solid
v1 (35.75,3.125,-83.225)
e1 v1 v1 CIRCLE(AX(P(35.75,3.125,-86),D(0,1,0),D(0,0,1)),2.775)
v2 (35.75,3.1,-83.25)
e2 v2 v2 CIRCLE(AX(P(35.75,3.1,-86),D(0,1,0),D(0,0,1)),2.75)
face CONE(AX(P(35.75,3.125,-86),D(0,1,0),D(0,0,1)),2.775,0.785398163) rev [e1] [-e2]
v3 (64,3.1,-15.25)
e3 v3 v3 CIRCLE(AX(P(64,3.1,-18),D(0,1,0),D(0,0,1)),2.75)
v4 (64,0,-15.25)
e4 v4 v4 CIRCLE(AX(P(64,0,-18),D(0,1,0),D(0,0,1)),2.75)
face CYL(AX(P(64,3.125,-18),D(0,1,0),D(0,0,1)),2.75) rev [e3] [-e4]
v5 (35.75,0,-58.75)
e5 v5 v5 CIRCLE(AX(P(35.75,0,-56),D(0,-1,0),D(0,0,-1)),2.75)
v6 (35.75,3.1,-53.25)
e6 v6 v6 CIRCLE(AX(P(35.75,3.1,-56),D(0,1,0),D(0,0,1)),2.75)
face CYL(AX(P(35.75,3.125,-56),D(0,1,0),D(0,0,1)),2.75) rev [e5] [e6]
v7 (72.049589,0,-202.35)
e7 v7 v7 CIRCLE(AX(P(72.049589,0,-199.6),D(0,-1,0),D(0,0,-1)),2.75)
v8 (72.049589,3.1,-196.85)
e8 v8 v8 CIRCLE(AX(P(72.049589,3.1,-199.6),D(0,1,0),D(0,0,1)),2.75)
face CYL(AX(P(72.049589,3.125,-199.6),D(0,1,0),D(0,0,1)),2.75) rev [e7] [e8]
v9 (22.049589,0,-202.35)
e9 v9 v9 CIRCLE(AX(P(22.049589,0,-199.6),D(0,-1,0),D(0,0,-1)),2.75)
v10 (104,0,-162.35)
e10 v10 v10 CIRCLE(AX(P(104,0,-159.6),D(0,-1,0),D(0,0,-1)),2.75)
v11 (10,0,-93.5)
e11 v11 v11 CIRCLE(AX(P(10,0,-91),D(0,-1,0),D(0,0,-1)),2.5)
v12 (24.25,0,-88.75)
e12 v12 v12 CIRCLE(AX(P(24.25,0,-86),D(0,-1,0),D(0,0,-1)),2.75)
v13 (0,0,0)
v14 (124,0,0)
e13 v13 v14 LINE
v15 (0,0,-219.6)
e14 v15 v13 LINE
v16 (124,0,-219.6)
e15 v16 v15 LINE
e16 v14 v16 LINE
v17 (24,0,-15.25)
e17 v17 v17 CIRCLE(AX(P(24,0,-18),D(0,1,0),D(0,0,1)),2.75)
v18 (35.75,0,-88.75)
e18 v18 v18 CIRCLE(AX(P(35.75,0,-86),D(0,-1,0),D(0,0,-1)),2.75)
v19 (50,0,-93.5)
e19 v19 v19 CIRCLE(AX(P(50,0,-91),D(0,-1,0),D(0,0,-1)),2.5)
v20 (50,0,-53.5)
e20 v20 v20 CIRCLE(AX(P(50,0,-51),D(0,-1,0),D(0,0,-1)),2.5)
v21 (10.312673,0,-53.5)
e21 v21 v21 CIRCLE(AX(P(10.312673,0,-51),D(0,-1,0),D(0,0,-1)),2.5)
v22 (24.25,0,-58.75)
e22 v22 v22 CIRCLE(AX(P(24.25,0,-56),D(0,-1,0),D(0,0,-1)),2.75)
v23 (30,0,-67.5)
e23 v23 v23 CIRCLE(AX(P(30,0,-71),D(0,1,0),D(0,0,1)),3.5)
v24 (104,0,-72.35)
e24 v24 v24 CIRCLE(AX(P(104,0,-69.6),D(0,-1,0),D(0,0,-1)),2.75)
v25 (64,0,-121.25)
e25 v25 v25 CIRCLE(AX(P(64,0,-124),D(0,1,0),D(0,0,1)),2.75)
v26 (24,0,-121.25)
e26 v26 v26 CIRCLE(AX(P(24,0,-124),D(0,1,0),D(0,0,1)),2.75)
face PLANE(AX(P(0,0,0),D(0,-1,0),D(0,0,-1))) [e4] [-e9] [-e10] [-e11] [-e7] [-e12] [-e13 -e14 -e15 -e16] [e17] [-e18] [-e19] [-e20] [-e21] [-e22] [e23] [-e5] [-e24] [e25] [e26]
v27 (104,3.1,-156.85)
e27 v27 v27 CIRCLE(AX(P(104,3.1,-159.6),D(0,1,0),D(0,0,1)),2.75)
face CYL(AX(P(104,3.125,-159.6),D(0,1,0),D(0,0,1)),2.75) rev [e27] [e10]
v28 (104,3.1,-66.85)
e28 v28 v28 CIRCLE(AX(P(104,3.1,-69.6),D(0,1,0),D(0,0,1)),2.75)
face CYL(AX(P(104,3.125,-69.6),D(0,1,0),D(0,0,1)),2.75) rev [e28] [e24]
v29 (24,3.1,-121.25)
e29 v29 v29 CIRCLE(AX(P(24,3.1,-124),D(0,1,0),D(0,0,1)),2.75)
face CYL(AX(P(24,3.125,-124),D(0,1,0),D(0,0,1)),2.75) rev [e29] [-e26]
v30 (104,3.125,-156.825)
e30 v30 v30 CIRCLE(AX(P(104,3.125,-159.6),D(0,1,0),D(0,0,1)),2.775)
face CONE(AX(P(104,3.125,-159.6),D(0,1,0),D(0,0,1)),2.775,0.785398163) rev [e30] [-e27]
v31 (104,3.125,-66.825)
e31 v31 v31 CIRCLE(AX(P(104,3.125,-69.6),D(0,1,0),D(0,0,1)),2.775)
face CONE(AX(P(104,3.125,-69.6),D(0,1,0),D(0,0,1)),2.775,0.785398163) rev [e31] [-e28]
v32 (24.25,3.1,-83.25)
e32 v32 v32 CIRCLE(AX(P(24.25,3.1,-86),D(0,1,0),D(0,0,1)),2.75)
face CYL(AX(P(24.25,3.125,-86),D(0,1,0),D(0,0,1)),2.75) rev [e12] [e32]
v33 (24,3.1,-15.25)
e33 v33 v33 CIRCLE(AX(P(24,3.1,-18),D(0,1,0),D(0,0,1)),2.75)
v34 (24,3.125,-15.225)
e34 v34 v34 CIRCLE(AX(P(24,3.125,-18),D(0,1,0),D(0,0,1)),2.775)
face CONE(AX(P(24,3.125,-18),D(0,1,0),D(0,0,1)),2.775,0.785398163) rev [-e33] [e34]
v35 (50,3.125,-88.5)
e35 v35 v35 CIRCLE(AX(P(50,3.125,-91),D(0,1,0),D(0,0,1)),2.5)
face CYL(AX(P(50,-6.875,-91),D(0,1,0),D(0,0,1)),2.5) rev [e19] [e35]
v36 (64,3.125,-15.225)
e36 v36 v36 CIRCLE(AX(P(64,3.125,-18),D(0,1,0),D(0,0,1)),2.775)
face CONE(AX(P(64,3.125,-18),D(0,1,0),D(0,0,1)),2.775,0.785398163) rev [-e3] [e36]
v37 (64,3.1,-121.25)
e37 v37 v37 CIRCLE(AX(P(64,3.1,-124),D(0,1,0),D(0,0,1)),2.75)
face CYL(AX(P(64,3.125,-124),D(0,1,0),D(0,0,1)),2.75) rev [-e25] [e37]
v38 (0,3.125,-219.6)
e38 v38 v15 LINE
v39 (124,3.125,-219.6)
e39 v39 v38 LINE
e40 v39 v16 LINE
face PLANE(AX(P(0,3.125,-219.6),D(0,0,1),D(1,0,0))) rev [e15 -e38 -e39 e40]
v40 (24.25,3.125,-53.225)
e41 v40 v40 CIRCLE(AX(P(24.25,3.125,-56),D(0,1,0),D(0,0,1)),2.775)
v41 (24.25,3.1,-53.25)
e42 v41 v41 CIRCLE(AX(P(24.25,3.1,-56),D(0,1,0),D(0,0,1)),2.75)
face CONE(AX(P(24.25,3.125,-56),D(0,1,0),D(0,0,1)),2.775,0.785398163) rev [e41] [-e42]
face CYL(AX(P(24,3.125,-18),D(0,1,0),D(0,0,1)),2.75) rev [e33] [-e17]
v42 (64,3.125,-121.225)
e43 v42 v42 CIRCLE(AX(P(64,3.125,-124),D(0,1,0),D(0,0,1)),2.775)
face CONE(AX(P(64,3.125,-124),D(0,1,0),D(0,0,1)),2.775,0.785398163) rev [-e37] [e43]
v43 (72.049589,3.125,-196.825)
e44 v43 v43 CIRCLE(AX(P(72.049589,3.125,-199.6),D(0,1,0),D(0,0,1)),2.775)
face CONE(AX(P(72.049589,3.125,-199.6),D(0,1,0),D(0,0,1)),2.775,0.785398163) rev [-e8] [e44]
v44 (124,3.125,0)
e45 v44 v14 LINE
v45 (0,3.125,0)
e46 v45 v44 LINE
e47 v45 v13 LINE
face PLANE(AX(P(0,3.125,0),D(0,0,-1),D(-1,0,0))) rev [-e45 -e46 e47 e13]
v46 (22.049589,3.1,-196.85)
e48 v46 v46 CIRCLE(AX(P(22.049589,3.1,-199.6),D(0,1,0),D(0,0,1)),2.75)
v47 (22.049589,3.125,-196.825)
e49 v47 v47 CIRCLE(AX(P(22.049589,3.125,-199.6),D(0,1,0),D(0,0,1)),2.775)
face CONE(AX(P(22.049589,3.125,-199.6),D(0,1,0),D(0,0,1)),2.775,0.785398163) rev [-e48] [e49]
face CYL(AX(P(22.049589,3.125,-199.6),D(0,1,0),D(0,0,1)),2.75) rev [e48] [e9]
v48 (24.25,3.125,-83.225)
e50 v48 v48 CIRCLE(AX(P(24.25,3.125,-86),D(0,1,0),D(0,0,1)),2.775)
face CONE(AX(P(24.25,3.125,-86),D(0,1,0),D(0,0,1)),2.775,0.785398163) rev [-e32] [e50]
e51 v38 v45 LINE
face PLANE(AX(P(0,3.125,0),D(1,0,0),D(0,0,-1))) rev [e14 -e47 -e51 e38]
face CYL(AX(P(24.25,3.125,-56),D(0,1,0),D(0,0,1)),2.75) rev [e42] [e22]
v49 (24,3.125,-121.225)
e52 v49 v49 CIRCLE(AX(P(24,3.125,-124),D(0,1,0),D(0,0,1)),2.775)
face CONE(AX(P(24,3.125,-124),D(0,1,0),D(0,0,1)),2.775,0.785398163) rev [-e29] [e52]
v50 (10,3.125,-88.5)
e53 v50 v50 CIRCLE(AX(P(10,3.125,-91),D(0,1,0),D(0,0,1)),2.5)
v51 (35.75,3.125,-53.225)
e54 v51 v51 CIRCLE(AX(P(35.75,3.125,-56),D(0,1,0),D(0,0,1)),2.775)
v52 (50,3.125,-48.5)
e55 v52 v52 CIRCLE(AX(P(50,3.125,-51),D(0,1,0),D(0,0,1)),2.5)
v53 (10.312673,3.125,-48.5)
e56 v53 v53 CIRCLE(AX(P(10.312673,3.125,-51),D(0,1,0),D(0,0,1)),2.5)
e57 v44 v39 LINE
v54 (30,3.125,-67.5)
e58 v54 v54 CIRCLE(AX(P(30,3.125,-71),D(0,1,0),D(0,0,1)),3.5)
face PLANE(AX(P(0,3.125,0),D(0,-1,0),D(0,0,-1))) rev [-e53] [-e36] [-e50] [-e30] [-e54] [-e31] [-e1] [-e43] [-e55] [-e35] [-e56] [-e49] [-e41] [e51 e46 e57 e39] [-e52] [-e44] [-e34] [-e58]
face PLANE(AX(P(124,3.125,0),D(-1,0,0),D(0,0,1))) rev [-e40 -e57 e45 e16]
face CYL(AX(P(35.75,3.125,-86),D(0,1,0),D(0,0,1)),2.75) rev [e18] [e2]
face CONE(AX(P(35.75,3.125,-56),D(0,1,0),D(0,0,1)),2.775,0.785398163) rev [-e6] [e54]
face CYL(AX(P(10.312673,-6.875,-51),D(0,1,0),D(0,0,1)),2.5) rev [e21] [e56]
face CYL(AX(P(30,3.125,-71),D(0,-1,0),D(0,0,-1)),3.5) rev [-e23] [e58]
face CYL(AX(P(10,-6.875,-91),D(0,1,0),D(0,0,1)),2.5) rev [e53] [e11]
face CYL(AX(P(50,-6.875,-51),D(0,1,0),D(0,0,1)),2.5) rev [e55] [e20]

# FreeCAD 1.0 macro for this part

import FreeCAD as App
import Part
import Sketcher
Q = App.Units.Quantity


def add_polygon(sketch, points):
    """Adds a closed chain of lines whose ends are joined by coincident constraints."""
    first, n = sketch.GeometryCount, len(points)
    for a, b in zip(points, points[1:] + points[:1]):
        sketch.addGeometry(Part.LineSegment(App.Vector(*a, 0), App.Vector(*b, 0)), False)
    for i in range(n):
        sketch.addConstraint(Sketcher.Constraint("Coincident", first + i, 2, first + (i + 1) % n, 1))

doc = App.newDocument("Part")
body = doc.addObject("PartDesign::Body", "Body")

# Sketch on XZ plane
sketch1 = body.newObject("Sketcher::SketchObject", "Sketch")
sketch1.AttachmentSupport = (doc.getObject("XZ_Plane"), [""])
sketch1.MapMode = "FlatFace"
add_polygon(sketch1, [(0, -219.6), (0, 0), (124, 0), (124, -219.6)])  # lines 0-3
sketch1.addGeometry(Part.Circle(App.Vector(30, -71, 0), App.Vector(0, 0, 1), 3.5), False)  # 4
sketch1.addConstraint([
    Sketcher.Constraint("Vertical", 0),
    Sketcher.Constraint("Horizontal", 1),
    Sketcher.Constraint("Vertical", 2),
    Sketcher.Constraint("Horizontal", 3),
    Sketcher.Constraint("Coincident", 0, 2, -1, 1),
    Sketcher.Constraint("Diameter", 4, Q("7 mm")),
    Sketcher.Constraint("DistanceX", 1, 1, 1, 2, Q("124 mm")),
    Sketcher.Constraint("DistanceY", 0, 1, 0, 2, Q("219.6 mm")),
    Sketcher.Constraint("DistanceX", -1, 1, 4, 3, Q("30 mm")),
    Sketcher.Constraint("DistanceY", 4, 3, -1, 1, Q("71 mm")),
])
pad1 = body.newObject("PartDesign::Pad", "Pad")
pad1.Profile = sketch1
pad1.Length = 3.125
pad1.Reversed = True

# Sketch on XZ plane
sketch2 = body.newObject("Sketcher::SketchObject", "Sketch001")
sketch2.AttachmentSupport = (doc.getObject("XZ_Plane"), [""])
sketch2.MapMode = "FlatFace"
sketch2.AttachmentOffset = App.Placement(App.Vector(0, 0, -3.125), App.Rotation())
sketch2.addGeometry([
    Part.Circle(App.Vector(10.312673, -51, 0), App.Vector(0, 0, 1), 2.5),
    Part.Circle(App.Vector(50, -51, 0), App.Vector(0, 0, 1), 2.5),
    Part.Circle(App.Vector(50, -91, 0), App.Vector(0, 0, 1), 2.5),
    Part.Circle(App.Vector(10, -91, 0), App.Vector(0, 0, 1), 2.5),
], False)
sketch2.addConstraint([
    Sketcher.Constraint("Equal", 0, 1),
    Sketcher.Constraint("Equal", 1, 2),
    Sketcher.Constraint("Equal", 2, 3),
    Sketcher.Constraint("Horizontal", 0, 3, 1, 3),
    Sketcher.Constraint("Horizontal", 2, 3, 3, 3),
    Sketcher.Constraint("Vertical", 1, 3, 2, 3),
    Sketcher.Constraint("Diameter", 0, Q("5 mm")),
    Sketcher.Constraint("DistanceY", 0, 3, -1, 1, Q("51 mm")),
    Sketcher.Constraint("DistanceX", -1, 1, 1, 3, Q("50 mm")),
    Sketcher.Constraint("DistanceY", 2, 3, -1, 1, Q("91 mm")),
    Sketcher.Constraint("DistanceX", -1, 1, 3, 3, Q("10 mm")),
    Sketcher.Constraint("DistanceX", -1, 1, 0, 3, Q("10.312673 mm")),
])
pocket1 = body.newObject("PartDesign::Pocket", "Pocket")
pocket1.Profile = sketch2
pocket1.Length = 10
pocket1.Reversed = True

# Sketch on XZ plane
sketch3 = body.newObject("Sketcher::SketchObject", "Sketch002")
sketch3.AttachmentSupport = (doc.getObject("XZ_Plane"), [""])
sketch3.MapMode = "FlatFace"
sketch3.AttachmentOffset = App.Placement(App.Vector(0, 0, -3.125), App.Rotation())
sketch3.addGeometry([
    Part.Circle(App.Vector(24.25, -86, 0), App.Vector(0, 0, 1), 2.75),
    Part.Circle(App.Vector(35.75, -86, 0), App.Vector(0, 0, 1), 2.75),
    Part.Circle(App.Vector(35.75, -56, 0), App.Vector(0, 0, 1), 2.75),
    Part.Circle(App.Vector(24.25, -56, 0), App.Vector(0, 0, 1), 2.75),
], False)
sketch3.addConstraint([
    Sketcher.Constraint("Equal", 0, 1),
    Sketcher.Constraint("Equal", 1, 2),
    Sketcher.Constraint("Equal", 2, 3),
    Sketcher.Constraint("Horizontal", 0, 3, 1, 3),
    Sketcher.Constraint("Horizontal", 2, 3, 3, 3),
    Sketcher.Constraint("Vertical", 1, 3, 2, 3),
    Sketcher.Constraint("Vertical", 0, 3, 3, 3),
    Sketcher.Constraint("Diameter", 0, Q("5.5 mm")),
    Sketcher.Constraint("DistanceY", 0, 3, -1, 1, Q("86 mm")),
    Sketcher.Constraint("DistanceY", 2, 3, -1, 1, Q("56 mm")),
    Sketcher.Constraint("DistanceX", 0, 3, 1, 3, Q("11.5 mm")),
    Sketcher.Constraint("DistanceX", -1, 1, 0, 3, Q("24.25 mm")),
])
doc.recompute()
hole = body.newObject("PartDesign::Hole", "Hole")
hole.Profile = sketch3
hole.ThreadType = "None"
hole.Diameter = 5.5
hole.DepthType = "Dimension"
hole.Depth = 10.1
hole.DrillPoint = "Angled"
hole.DrillPointAngle = 118
hole.HoleCutType = "Countersink"
hole.HoleCutDiameter = 5.55
hole.HoleCutCountersinkAngle = 90
hole.Reversed = True

# Sketch on XZ plane
sketch4 = body.newObject("Sketcher::SketchObject", "Sketch003")
sketch4.AttachmentSupport = (doc.getObject("XZ_Plane"), [""])
sketch4.MapMode = "FlatFace"
sketch4.AttachmentOffset = App.Placement(App.Vector(0, 0, -3.125), App.Rotation())
sketch4.addGeometry([
    Part.Circle(App.Vector(22.049589, -199.6, 0), App.Vector(0, 0, 1), 2.75),
    Part.Circle(App.Vector(72.049589, -199.6, 0), App.Vector(0, 0, 1), 2.75),
    Part.Circle(App.Vector(104, -159.6, 0), App.Vector(0, 0, 1), 2.75),
    Part.Circle(App.Vector(104, -69.6, 0), App.Vector(0, 0, 1), 2.75),
], False)
sketch4.addConstraint([
    Sketcher.Constraint("Equal", 0, 1),
    Sketcher.Constraint("Equal", 1, 2),
    Sketcher.Constraint("Equal", 2, 3),
    Sketcher.Constraint("Horizontal", 0, 3, 1, 3),
    Sketcher.Constraint("Vertical", 2, 3, 3, 3),
    Sketcher.Constraint("Diameter", 0, Q("5.5 mm")),
    Sketcher.Constraint("DistanceX", -1, 1, 2, 3, Q("104 mm")),
    Sketcher.Constraint("DistanceX", 0, 3, 1, 3, Q("50 mm")),
    Sketcher.Constraint("DistanceY", 1, 3, 2, 3, Q("40 mm")),
    Sketcher.Constraint("DistanceY", 2, 3, 3, 3, Q("90 mm")),
    Sketcher.Constraint("DistanceY", 0, 3, -1, 1, Q("199.6 mm")),
    Sketcher.Constraint("DistanceX", -1, 1, 0, 3, Q("22.049589 mm")),
])
doc.recompute()
hole2 = body.newObject("PartDesign::Hole", "Hole001")
hole2.Profile = sketch4
hole2.ThreadType = "None"
hole2.Diameter = 5.5
hole2.DepthType = "Dimension"
hole2.Depth = 10.1
hole2.DrillPoint = "Angled"
hole2.DrillPointAngle = 118
hole2.HoleCutType = "Countersink"
hole2.HoleCutDiameter = 5.55
hole2.HoleCutCountersinkAngle = 90
hole2.Reversed = True

# Sketch on XZ plane
sketch5 = body.newObject("Sketcher::SketchObject", "Sketch004")
sketch5.AttachmentSupport = (doc.getObject("XZ_Plane"), [""])
sketch5.MapMode = "FlatFace"
sketch5.AttachmentOffset = App.Placement(App.Vector(0, 0, -3.125), App.Rotation())
sketch5.addGeometry([
    Part.Circle(App.Vector(24, -124, 0), App.Vector(0, 0, 1), 2.75),
    Part.Circle(App.Vector(64, -124, 0), App.Vector(0, 0, 1), 2.75),
    Part.Circle(App.Vector(24, -18, 0), App.Vector(0, 0, 1), 2.75),
    Part.Circle(App.Vector(64, -18, 0), App.Vector(0, 0, 1), 2.75),
], False)
sketch5.addConstraint([
    Sketcher.Constraint("Equal", 0, 1),
    Sketcher.Constraint("Equal", 1, 2),
    Sketcher.Constraint("Equal", 2, 3),
    Sketcher.Constraint("Horizontal", 0, 3, 1, 3),
    Sketcher.Constraint("Horizontal", 2, 3, 3, 3),
    Sketcher.Constraint("Vertical", 0, 3, 2, 3),
    Sketcher.Constraint("Vertical", 1, 3, 3, 3),
    Sketcher.Constraint("Diameter", 0, Q("5.5 mm")),
    Sketcher.Constraint("DistanceX", -1, 1, 0, 3, Q("24 mm")),
    Sketcher.Constraint("DistanceY", 0, 3, -1, 1, Q("124 mm")),
    Sketcher.Constraint("DistanceX", -1, 1, 1, 3, Q("64 mm")),
    Sketcher.Constraint("DistanceY", 2, 3, -1, 1, Q("18 mm")),
])
doc.recompute()
hole3 = body.newObject("PartDesign::Hole", "Hole002")
hole3.Profile = sketch5
hole3.ThreadType = "None"
hole3.Diameter = 5.5
hole3.DepthType = "ThroughAll"
hole3.HoleCutType = "Countersink"
hole3.HoleCutDiameter = 5.55
hole3.HoleCutCountersinkAngle = 90
hole3.Reversed = True

doc.recompute()
